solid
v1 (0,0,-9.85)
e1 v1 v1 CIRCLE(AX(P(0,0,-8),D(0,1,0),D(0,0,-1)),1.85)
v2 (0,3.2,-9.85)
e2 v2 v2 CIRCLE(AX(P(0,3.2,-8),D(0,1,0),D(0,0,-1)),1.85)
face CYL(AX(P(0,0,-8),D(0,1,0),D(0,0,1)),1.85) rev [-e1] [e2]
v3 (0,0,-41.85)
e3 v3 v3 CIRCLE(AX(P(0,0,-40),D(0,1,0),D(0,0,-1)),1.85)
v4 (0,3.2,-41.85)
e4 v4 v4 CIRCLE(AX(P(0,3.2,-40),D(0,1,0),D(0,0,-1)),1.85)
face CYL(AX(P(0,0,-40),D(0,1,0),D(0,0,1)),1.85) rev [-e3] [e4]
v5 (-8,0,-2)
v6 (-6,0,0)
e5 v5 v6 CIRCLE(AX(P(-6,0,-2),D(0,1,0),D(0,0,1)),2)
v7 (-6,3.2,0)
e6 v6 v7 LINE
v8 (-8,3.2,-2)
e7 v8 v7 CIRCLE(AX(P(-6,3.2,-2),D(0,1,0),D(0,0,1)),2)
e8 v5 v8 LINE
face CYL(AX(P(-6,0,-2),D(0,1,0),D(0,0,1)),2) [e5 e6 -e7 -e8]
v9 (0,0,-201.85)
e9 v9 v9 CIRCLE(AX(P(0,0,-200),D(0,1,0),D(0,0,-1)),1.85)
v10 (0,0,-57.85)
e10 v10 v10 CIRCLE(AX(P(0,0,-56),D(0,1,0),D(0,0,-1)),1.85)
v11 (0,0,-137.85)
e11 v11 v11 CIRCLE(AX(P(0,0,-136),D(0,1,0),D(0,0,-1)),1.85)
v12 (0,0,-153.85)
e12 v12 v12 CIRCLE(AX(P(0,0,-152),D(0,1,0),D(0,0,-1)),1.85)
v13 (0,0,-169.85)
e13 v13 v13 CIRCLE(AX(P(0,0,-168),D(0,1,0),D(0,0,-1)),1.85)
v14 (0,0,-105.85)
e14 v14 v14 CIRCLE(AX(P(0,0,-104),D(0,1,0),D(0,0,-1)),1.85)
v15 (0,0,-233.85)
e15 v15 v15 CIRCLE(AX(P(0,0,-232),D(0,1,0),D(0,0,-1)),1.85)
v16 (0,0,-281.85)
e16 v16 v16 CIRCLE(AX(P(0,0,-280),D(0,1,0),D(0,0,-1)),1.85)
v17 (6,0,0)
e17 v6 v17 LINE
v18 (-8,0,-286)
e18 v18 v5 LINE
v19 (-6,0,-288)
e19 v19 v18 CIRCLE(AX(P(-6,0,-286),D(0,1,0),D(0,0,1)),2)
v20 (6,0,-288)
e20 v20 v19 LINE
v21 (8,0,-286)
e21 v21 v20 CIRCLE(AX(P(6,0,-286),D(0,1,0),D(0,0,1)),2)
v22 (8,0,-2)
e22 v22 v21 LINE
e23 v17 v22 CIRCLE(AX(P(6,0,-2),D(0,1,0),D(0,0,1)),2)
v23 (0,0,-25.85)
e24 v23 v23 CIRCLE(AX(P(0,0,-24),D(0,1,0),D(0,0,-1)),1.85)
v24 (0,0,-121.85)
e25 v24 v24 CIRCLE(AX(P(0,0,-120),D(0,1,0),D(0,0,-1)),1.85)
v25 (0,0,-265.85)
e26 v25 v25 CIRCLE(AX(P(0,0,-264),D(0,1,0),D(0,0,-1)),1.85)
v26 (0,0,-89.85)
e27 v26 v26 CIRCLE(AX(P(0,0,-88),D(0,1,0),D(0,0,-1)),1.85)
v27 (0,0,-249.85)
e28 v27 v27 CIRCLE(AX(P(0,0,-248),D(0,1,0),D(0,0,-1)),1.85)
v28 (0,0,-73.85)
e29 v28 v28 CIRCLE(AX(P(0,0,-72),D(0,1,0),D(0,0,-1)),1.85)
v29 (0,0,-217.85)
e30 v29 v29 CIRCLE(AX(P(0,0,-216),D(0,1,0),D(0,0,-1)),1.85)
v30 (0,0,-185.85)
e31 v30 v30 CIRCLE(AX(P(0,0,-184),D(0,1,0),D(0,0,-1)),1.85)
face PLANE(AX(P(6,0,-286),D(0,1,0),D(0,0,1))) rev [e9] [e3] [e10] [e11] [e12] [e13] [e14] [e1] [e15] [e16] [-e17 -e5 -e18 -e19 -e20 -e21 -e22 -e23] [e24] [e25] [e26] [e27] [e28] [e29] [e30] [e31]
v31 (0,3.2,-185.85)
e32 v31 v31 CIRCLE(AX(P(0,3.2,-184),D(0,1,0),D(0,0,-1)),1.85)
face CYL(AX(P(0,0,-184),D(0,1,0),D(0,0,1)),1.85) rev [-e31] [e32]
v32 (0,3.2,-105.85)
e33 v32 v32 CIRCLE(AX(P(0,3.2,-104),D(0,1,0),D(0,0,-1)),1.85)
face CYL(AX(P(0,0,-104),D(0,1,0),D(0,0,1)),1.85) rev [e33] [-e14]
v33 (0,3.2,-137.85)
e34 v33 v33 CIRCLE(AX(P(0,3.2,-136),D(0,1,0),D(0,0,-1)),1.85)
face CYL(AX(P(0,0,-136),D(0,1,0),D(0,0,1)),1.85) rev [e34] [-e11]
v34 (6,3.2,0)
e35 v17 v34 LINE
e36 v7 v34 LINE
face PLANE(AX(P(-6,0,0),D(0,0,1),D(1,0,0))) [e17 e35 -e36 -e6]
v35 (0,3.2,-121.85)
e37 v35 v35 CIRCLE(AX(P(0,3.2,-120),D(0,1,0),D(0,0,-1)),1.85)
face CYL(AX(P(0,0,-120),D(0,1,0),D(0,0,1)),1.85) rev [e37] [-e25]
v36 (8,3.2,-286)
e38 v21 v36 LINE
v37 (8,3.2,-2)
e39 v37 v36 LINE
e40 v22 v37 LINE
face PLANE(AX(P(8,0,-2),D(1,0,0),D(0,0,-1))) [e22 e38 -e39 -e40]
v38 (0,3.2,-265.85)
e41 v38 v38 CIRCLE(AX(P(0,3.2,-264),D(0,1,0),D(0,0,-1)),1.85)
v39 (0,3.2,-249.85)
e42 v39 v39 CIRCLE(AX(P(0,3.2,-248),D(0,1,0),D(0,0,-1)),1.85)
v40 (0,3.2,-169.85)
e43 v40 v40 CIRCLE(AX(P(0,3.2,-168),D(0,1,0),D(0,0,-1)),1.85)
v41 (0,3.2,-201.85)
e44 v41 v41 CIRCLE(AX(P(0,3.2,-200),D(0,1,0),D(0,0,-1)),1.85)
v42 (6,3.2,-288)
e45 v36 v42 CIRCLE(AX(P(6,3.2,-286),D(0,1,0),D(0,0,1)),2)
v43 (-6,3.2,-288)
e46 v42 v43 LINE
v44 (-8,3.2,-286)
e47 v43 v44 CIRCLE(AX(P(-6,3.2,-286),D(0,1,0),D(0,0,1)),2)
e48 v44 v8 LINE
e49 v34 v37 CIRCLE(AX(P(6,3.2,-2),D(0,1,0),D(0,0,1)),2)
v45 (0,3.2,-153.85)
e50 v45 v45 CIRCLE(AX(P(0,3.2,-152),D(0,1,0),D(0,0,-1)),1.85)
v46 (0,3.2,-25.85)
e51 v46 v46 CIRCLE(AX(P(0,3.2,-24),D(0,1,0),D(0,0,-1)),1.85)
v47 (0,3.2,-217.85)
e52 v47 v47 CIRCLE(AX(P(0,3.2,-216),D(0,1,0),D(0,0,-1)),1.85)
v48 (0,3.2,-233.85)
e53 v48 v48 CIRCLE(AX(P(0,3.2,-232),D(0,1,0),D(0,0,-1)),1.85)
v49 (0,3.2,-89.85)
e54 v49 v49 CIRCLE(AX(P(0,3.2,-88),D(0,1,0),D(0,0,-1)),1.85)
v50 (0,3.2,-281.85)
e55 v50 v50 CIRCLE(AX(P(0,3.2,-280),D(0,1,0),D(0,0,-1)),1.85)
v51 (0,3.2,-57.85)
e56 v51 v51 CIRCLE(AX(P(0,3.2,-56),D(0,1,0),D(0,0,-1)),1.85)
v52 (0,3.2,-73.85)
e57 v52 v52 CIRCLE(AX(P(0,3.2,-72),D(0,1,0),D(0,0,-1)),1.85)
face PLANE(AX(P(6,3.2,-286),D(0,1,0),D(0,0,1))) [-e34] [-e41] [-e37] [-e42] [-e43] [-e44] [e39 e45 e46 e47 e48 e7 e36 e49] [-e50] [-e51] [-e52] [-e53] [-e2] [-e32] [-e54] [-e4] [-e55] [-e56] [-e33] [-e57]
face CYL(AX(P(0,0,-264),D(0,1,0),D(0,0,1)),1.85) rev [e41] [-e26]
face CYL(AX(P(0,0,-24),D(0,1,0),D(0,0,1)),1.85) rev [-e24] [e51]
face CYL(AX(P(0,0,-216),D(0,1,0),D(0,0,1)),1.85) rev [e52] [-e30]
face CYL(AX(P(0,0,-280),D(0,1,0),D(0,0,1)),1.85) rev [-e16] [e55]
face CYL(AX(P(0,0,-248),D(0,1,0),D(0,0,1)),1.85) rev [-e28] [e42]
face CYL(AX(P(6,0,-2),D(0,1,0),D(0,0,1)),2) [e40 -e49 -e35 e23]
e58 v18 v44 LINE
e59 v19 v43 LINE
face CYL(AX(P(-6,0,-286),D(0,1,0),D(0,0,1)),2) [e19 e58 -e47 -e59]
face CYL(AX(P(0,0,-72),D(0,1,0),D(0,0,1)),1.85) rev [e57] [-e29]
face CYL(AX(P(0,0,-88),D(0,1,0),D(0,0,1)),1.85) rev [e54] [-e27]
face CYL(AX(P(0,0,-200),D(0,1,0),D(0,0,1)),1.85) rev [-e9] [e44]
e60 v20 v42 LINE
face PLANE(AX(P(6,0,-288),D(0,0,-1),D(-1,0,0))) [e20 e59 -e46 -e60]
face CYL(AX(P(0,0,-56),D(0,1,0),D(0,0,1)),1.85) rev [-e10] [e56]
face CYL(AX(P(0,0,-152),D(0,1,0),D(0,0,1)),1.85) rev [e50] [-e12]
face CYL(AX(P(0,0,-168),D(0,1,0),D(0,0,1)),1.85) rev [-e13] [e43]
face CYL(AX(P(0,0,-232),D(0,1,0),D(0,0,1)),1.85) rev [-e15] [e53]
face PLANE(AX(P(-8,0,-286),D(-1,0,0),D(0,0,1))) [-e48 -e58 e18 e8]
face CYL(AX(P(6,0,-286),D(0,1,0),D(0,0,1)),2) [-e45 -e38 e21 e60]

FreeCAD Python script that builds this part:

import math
import FreeCAD as App
import Part
import Sketcher

doc = App.newDocument("Part")
params = doc.addObject("Spreadsheet::Sheet", "Params")
for row, (alias, value) in enumerate([
    ("sketch1_radius", "2 mm"),
    ("sketch1_diameter", "3.7 mm"),
    ("sketch1_width", "12 mm"),
    ("sketch1_height", "284 mm"),
    ("pad1_length", "3.2 mm"),
], start=1):
    params.set(f"A{row}", alias)
    params.set(f"B{row}", "=" + value)
    params.setAlias(f"B{row}", alias)

body = doc.addObject("PartDesign::Body", "Body")

sketch1 = body.newObject("Sketcher::SketchObject", "Sketch")
sketch1.AttachmentSupport = (doc.getObject("XZ_Plane"), [""])
sketch1.MapMode = "FlatFace"
sketch1.AttachmentOffset = App.Placement(App.Vector(0, 0, -3.2), App.Rotation())
sketch1.addGeometry([
    Part.LineSegment(App.Vector(6, -288, 0), App.Vector(-6, -288, 0)),
    Part.ArcOfCircle(Part.Circle(App.Vector(-6, -286, 0), App.Vector(0, 0, 1), 2), math.radians(-180), math.radians(-90)),
    Part.LineSegment(App.Vector(-8, -286, 0), App.Vector(-8, -2, 0)),
    Part.ArcOfCircle(Part.Circle(App.Vector(-6, -2, 0), App.Vector(0, 0, 1), 2), math.radians(90), math.radians(180)),
    Part.LineSegment(App.Vector(-6, 0, 0), App.Vector(6, 0, 0)),
    Part.ArcOfCircle(Part.Circle(App.Vector(6, -2, 0), App.Vector(0, 0, 1), 2), math.radians(0), math.radians(90)),
    Part.LineSegment(App.Vector(8, -2, 0), App.Vector(8, -286, 0)),
    Part.ArcOfCircle(Part.Circle(App.Vector(6, -286, 0), App.Vector(0, 0, 1), 2), math.radians(-90), math.radians(0)),
    Part.Circle(App.Vector(0, -8, 0), App.Vector(0, 0, 1), 1.9),
    Part.Circle(App.Vector(0, -24, 0), App.Vector(0, 0, 1), 1.9),
    Part.Circle(App.Vector(0, -40, 0), App.Vector(0, 0, 1), 1.9),
    Part.Circle(App.Vector(0, -56, 0), App.Vector(0, 0, 1), 1.9),
    Part.Circle(App.Vector(0, -72, 0), App.Vector(0, 0, 1), 1.9),
    Part.Circle(App.Vector(0, -88, 0), App.Vector(0, 0, 1), 1.9),
    Part.Circle(App.Vector(0, -104, 0), App.Vector(0, 0, 1), 1.9),
    Part.Circle(App.Vector(0, -120, 0), App.Vector(0, 0, 1), 1.9),
    Part.Circle(App.Vector(0, -136, 0), App.Vector(0, 0, 1), 1.9),
    Part.Circle(App.Vector(0, -152, 0), App.Vector(0, 0, 1), 1.9),
    Part.Circle(App.Vector(0, -168, 0), App.Vector(0, 0, 1), 1.9),
    Part.Circle(App.Vector(0, -184, 0), App.Vector(0, 0, 1), 1.9),
    Part.Circle(App.Vector(0, -200, 0), App.Vector(0, 0, 1), 1.9),
    Part.Circle(App.Vector(0, -216, 0), App.Vector(0, 0, 1), 1.9),
    Part.Circle(App.Vector(0, -232, 0), App.Vector(0, 0, 1), 1.9),
    Part.Circle(App.Vector(0, -248, 0), App.Vector(0, 0, 1), 1.9),
    Part.Circle(App.Vector(0, -264, 0), App.Vector(0, 0, 1), 1.9),
    Part.Circle(App.Vector(0, -280, 0), App.Vector(0, 0, 1), 1.9),
], False)
sketch1.addConstraint([
    Sketcher.Constraint("Tangent", 0, 2, 1, 2),
    Sketcher.Constraint("Tangent", 1, 1, 2, 1),
    Sketcher.Constraint("Tangent", 2, 2, 3, 2),
    Sketcher.Constraint("Tangent", 3, 1, 4, 1),
    Sketcher.Constraint("Tangent", 4, 2, 5, 2),
    Sketcher.Constraint("Tangent", 5, 1, 6, 1),
    Sketcher.Constraint("Tangent", 6, 2, 7, 2),
    Sketcher.Constraint("Tangent", 7, 1, 0, 1),
    Sketcher.Constraint("Horizontal", 0),
    Sketcher.Constraint("Vertical", 2),
    Sketcher.Constraint("Horizontal", 4),
    Sketcher.Constraint("Vertical", 6),
    Sketcher.Constraint("Equal", 1, 3),
    Sketcher.Constraint("Equal", 3, 5),
    Sketcher.Constraint("Equal", 5, 7),
    Sketcher.Constraint("Equal", 8, 9),
    Sketcher.Constraint("Equal", 9, 10),
    Sketcher.Constraint("Equal", 10, 11),
    Sketcher.Constraint("Equal", 11, 12),
    Sketcher.Constraint("Equal", 12, 13),
    Sketcher.Constraint("Equal", 13, 14),
    Sketcher.Constraint("Equal", 14, 15),
    Sketcher.Constraint("Equal", 15, 16),
    Sketcher.Constraint("Equal", 16, 17),
    Sketcher.Constraint("Equal", 17, 18),
    Sketcher.Constraint("Equal", 18, 19),
    Sketcher.Constraint("Equal", 19, 20),
    Sketcher.Constraint("Equal", 20, 21),
    Sketcher.Constraint("Equal", 21, 22),
    Sketcher.Constraint("Equal", 22, 23),
    Sketcher.Constraint("Equal", 23, 24),
    Sketcher.Constraint("Equal", 24, 25),
    Sketcher.Constraint("Symmetric", 3, 1, 4, 2, -1, 1),
    Sketcher.Constraint("PointOnObject", 8, 3, -2),
    Sketcher.Constraint("PointOnObject", 9, 3, -2),
    Sketcher.Constraint("PointOnObject", 10, 3, -2),
    Sketcher.Constraint("PointOnObject", 11, 3, -2),
    Sketcher.Constraint("PointOnObject", 12, 3, -2),
    Sketcher.Constraint("PointOnObject", 13, 3, -2),
    Sketcher.Constraint("PointOnObject", 14, 3, -2),
    Sketcher.Constraint("PointOnObject", 15, 3, -2),
    Sketcher.Constraint("PointOnObject", 16, 3, -2),
    Sketcher.Constraint("PointOnObject", 17, 3, -2),
    Sketcher.Constraint("PointOnObject", 18, 3, -2),
    Sketcher.Constraint("PointOnObject", 19, 3, -2),
    Sketcher.Constraint("PointOnObject", 20, 3, -2),
    Sketcher.Constraint("PointOnObject", 21, 3, -2),
    Sketcher.Constraint("PointOnObject", 22, 3, -2),
    Sketcher.Constraint("PointOnObject", 23, 3, -2),
    Sketcher.Constraint("PointOnObject", 24, 3, -2),
    Sketcher.Constraint("PointOnObject", 25, 3, -2),
    Sketcher.Constraint("Radius", 1, 2.0),
    Sketcher.Constraint("Diameter", 8, 3.7),
    Sketcher.Constraint("DistanceX", 0, 2, 0, 1, 12.0),
    Sketcher.Constraint("DistanceY", 2, 1, 2, 2, 284.0),
    Sketcher.Constraint("DistanceY", 8, 3, -1, 1, 8.0),
    Sketcher.Constraint("DistanceY", 9, 3, -1, 1, 24.0),
    Sketcher.Constraint("DistanceY", 10, 3, -1, 1, 40.0),
    Sketcher.Constraint("DistanceY", 11, 3, -1, 1, 56.0),
    Sketcher.Constraint("DistanceY", 12, 3, -1, 1, 72.0),
    Sketcher.Constraint("DistanceY", 13, 3, -1, 1, 88.0),
    Sketcher.Constraint("DistanceY", 14, 3, -1, 1, 104.0),
    Sketcher.Constraint("DistanceY", 15, 3, -1, 1, 120.0),
    Sketcher.Constraint("DistanceY", 16, 3, -1, 1, 136.0),
    Sketcher.Constraint("DistanceY", 17, 3, -1, 1, 152.0),
    Sketcher.Constraint("DistanceY", 18, 3, -1, 1, 168.0),
    Sketcher.Constraint("DistanceY", 19, 3, -1, 1, 184.0),
    Sketcher.Constraint("DistanceY", 20, 3, -1, 1, 200.0),
    Sketcher.Constraint("DistanceY", 21, 3, -1, 1, 216.0),
    Sketcher.Constraint("DistanceY", 22, 3, -1, 1, 232.0),
    Sketcher.Constraint("DistanceY", 23, 3, -1, 1, 248.0),
    Sketcher.Constraint("DistanceY", 24, 3, -1, 1, 264.0),
    Sketcher.Constraint("DistanceY", 25, 3, -1, 1, 280.0),
])
sketch1.setExpression("Constraints[51]", "Params.sketch1_radius")
sketch1.setExpression("Constraints[52]", "Params.sketch1_diameter")
sketch1.setExpression("Constraints[53]", "Params.sketch1_width")
sketch1.setExpression("Constraints[54]", "Params.sketch1_height")
pad1 = body.newObject("PartDesign::Pad", "Pad")
pad1.Profile = sketch1
pad1.setExpression("Length", "Params.pad1_length")

doc.recompute()
